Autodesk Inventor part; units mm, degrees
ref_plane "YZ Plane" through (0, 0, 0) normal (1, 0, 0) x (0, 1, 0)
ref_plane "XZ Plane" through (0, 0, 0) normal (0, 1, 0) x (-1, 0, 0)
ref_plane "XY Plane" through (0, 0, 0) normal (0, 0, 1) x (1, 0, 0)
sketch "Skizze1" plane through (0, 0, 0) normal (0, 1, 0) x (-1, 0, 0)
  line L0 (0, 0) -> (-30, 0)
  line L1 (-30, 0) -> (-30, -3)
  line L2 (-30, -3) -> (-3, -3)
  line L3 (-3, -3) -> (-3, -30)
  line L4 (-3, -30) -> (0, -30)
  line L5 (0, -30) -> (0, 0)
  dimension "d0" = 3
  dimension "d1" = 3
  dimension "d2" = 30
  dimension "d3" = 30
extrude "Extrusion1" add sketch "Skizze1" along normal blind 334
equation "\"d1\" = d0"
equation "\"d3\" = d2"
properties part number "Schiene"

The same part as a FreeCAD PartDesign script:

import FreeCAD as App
import Part
import Sketcher
from FreeCAD import Vector
Q = App.Units.Quantity

doc = App.newDocument("Part")
body = doc.addObject("PartDesign::Body", "Body")

# Sketch on XZ plane
sketch1 = body.newObject("Sketcher::SketchObject", "Sketch")
sketch1.AttachmentSupport = (doc.getObject("XZ_Plane"), [""])
sketch1.MapMode = "FlatFace"
sketch1.addGeometry([
    Part.LineSegment(Vector(0, -30, 0), Vector(0, 0, 0)),  # 0
    Part.LineSegment(Vector(0, 0, 0), Vector(30, 0, 0)),  # 1
    Part.LineSegment(Vector(30, 0, 0), Vector(30, -3, 0)),  # 2
    Part.LineSegment(Vector(30, -3, 0), Vector(3, -3, 0)),  # 3
    Part.LineSegment(Vector(3, -3, 0), Vector(3, -30, 0)),  # 4
    Part.LineSegment(Vector(3, -30, 0), Vector(0, -30, 0)),  # 5
], False)
sketch1.addConstraint([
    Sketcher.Constraint("Coincident", 0, 2, 1, 1),
    Sketcher.Constraint("Coincident", 1, 2, 2, 1),
    Sketcher.Constraint("Coincident", 2, 2, 3, 1),
    Sketcher.Constraint("Coincident", 3, 2, 4, 1),
    Sketcher.Constraint("Coincident", 4, 2, 5, 1),
    Sketcher.Constraint("Coincident", 5, 2, 0, 1),
    Sketcher.Constraint("Vertical", 0),
    Sketcher.Constraint("Horizontal", 1),
    Sketcher.Constraint("Vertical", 2),
    Sketcher.Constraint("Horizontal", 3),
    Sketcher.Constraint("Vertical", 4),
    Sketcher.Constraint("Horizontal", 5),
    Sketcher.Constraint("Coincident", 0, 2, -1, 1),
    Sketcher.Constraint("Equal", 1, 0),
    Sketcher.Constraint("Equal", 5, 2),
    Sketcher.Constraint("DistanceX", 1, 1, 1, 2, Q("1.1811 in")),
    Sketcher.Constraint("DistanceX", 5, 2, 5, 1, Q("0.1181 in")),
])
pad1 = body.newObject("PartDesign::Pad", "Pad")
pad1.Profile = sketch1
pad1.Length = Q("13.1496063 in")
pad1.Reversed = True

doc.recompute()
